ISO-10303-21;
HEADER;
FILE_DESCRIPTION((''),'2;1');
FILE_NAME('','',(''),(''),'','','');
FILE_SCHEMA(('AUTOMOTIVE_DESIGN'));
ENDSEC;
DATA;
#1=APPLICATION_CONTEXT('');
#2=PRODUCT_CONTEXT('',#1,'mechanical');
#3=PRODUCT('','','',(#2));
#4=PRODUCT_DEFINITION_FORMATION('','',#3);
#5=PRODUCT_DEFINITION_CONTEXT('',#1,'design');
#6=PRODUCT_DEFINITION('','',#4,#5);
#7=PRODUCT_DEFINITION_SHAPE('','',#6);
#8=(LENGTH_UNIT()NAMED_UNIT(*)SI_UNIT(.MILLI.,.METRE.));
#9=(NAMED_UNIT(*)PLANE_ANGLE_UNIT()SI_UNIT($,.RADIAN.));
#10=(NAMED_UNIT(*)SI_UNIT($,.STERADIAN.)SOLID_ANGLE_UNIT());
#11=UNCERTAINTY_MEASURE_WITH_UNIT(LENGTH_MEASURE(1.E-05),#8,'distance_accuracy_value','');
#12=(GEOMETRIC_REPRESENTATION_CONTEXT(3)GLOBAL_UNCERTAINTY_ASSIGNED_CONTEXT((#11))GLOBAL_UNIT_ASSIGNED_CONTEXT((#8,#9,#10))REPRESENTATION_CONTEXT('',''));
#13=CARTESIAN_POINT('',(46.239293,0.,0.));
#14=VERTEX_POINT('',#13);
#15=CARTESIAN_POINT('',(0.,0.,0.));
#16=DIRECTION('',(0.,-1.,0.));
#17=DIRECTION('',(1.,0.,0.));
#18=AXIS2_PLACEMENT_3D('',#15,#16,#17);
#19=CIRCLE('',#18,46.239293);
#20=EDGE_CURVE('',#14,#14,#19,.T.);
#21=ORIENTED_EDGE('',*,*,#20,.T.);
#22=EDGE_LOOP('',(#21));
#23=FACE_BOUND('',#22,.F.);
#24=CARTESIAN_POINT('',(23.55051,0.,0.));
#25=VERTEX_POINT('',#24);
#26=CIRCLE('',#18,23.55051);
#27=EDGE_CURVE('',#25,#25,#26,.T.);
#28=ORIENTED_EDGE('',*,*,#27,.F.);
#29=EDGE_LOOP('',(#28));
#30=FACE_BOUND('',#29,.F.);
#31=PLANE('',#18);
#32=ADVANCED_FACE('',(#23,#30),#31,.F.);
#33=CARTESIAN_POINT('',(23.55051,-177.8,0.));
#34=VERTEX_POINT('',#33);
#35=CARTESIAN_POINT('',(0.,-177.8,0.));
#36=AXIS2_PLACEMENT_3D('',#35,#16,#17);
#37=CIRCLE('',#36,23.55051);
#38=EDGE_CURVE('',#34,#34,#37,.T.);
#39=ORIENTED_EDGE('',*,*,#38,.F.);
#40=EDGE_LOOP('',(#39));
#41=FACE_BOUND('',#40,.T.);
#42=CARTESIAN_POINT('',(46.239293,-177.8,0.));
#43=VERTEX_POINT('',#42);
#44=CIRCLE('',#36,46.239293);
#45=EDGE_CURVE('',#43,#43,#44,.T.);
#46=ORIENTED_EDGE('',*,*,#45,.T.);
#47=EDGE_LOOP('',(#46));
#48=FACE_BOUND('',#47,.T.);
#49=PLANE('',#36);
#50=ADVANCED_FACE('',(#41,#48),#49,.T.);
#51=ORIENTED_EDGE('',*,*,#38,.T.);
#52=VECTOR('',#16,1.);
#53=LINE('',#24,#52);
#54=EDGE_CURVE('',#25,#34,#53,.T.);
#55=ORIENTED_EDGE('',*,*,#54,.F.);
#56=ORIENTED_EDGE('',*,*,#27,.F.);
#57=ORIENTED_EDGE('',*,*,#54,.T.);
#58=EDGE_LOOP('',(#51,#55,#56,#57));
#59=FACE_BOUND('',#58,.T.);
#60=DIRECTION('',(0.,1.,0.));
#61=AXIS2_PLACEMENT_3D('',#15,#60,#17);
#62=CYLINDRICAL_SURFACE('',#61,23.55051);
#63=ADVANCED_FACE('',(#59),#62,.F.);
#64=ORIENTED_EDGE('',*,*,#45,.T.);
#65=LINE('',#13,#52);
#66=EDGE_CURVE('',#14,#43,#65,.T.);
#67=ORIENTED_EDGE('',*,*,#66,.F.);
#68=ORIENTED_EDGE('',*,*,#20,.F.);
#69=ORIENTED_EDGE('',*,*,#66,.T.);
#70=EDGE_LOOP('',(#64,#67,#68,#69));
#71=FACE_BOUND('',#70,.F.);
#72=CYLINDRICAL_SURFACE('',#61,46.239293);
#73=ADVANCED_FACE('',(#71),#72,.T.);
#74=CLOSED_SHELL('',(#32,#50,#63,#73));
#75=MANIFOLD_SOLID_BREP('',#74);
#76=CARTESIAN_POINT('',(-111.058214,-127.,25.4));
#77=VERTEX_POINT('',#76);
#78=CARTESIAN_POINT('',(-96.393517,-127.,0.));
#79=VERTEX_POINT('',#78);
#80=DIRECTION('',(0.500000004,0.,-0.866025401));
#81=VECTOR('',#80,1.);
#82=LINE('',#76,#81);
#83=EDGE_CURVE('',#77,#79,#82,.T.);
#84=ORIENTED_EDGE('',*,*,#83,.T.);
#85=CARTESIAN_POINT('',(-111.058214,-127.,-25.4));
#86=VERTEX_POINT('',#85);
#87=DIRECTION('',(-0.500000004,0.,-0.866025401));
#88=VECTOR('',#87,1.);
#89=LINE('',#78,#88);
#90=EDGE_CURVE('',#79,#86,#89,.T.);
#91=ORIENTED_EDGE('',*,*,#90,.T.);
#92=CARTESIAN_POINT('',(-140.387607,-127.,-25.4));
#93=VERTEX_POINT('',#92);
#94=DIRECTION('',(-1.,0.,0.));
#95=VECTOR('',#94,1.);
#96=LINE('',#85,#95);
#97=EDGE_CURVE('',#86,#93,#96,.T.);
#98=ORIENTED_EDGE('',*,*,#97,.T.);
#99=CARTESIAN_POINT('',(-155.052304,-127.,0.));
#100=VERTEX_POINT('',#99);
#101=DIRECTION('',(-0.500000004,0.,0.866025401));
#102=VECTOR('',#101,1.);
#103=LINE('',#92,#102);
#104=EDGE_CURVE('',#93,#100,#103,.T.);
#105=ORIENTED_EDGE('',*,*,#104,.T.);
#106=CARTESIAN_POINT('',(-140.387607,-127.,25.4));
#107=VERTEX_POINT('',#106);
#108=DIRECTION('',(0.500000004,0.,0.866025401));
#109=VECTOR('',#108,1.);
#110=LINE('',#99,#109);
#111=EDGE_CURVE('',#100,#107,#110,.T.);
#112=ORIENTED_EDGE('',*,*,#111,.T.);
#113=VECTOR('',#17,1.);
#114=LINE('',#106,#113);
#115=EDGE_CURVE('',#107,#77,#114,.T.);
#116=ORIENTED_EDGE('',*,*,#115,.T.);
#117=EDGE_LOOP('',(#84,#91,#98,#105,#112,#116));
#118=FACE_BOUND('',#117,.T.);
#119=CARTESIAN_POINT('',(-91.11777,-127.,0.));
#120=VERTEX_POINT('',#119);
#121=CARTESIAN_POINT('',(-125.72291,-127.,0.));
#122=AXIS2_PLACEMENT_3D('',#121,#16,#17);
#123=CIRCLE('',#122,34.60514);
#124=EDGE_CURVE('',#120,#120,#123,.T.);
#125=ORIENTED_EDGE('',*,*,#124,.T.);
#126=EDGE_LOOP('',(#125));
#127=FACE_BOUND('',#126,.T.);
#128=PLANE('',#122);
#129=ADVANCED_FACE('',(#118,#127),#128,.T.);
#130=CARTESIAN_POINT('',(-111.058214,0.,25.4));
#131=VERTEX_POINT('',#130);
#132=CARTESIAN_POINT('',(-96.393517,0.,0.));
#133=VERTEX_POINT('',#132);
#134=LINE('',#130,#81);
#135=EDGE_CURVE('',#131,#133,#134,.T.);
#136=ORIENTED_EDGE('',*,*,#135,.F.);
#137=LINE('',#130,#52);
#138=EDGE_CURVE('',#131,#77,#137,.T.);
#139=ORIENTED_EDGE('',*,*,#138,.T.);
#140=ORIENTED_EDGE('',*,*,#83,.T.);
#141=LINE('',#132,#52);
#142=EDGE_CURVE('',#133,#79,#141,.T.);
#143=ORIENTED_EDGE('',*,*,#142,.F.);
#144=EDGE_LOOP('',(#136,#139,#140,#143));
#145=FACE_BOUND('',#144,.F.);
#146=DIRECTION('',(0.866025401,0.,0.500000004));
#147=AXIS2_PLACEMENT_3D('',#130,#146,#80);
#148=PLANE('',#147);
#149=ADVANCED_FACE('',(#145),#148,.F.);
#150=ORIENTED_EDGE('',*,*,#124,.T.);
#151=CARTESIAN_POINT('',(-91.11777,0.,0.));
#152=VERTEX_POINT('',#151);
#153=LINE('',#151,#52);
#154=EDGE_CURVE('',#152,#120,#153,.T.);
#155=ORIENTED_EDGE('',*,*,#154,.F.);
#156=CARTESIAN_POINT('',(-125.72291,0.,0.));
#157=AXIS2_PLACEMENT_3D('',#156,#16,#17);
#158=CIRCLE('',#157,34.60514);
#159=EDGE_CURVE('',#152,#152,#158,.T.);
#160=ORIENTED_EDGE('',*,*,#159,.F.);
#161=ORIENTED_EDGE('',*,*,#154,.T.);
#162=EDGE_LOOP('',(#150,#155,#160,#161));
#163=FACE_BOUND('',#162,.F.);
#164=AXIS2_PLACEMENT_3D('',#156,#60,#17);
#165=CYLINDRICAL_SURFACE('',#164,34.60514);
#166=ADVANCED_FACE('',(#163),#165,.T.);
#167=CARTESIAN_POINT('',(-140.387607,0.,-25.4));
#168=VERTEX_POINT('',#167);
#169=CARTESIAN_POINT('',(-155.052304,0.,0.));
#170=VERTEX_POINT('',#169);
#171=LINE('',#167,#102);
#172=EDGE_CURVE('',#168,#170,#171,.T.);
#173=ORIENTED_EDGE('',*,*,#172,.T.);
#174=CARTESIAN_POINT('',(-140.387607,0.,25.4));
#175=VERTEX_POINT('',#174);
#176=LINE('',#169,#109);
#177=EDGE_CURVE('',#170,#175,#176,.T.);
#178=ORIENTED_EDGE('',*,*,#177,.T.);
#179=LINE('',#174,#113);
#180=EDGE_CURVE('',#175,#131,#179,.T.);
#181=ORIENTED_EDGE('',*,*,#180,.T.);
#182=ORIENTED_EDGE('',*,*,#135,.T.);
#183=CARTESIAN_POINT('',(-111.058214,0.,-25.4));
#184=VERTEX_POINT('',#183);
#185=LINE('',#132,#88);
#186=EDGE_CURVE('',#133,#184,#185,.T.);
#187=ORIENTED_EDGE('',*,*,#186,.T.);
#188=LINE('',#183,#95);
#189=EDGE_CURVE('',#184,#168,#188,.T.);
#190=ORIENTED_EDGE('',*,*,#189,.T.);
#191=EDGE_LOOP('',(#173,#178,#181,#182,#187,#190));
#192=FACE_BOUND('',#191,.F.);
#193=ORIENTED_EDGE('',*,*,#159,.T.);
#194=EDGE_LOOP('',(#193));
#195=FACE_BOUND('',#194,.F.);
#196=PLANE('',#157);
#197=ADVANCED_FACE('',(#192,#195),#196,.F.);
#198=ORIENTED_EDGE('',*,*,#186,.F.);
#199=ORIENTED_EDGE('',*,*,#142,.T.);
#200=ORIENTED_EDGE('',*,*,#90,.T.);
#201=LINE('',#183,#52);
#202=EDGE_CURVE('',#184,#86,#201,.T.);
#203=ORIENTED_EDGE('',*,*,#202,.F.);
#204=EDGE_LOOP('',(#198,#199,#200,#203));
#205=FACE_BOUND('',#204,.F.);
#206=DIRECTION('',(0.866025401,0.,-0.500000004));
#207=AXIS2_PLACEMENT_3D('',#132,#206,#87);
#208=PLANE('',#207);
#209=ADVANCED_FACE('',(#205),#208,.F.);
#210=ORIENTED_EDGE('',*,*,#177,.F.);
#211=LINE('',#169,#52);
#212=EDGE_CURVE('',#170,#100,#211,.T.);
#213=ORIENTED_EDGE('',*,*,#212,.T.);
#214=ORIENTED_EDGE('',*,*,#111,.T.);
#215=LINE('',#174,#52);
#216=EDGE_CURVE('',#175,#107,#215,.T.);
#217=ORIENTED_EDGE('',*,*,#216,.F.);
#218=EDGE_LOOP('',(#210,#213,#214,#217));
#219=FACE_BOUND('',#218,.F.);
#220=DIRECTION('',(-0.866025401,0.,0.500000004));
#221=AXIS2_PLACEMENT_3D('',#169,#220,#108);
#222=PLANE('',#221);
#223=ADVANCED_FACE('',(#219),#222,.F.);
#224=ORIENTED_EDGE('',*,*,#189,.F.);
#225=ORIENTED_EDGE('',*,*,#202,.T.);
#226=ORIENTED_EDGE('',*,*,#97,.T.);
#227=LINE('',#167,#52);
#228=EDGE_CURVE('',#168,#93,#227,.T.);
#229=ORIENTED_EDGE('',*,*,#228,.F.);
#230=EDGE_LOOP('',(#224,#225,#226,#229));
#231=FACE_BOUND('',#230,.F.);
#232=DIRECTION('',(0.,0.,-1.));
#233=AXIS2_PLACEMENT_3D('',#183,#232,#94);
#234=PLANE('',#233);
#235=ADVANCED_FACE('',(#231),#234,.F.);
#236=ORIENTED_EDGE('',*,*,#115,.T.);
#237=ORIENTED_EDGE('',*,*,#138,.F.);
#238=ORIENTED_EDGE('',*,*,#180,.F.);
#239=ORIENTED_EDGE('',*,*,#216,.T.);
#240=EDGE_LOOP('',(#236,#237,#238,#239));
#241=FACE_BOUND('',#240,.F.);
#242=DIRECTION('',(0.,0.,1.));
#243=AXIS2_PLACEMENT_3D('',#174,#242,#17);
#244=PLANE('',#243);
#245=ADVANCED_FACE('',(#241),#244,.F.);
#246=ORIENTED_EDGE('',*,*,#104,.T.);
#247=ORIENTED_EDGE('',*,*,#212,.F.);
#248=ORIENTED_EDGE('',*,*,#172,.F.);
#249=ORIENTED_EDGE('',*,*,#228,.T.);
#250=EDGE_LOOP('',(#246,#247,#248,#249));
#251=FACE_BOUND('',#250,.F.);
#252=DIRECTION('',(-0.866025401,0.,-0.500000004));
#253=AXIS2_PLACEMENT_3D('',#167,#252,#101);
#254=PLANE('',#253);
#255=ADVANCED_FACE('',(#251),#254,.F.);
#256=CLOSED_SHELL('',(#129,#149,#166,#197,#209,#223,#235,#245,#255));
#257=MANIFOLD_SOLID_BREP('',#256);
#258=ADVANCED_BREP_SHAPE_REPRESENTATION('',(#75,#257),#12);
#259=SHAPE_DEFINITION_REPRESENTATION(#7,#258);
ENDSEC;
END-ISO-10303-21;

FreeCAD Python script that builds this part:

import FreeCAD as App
import Part
import Sketcher

V = App.Vector
Q = App.Units.Quantity


def add_polygon(sketch, points):
    """Adds a closed chain of lines whose ends are joined by coincident constraints."""
    first, n = sketch.GeometryCount, len(points)
    for a, b in zip(points, points[1:] + points[:1]):
        sketch.addGeometry(Part.LineSegment(App.Vector(*a, 0), App.Vector(*b, 0)), False)
    for i in range(n):
        sketch.addConstraint(Sketcher.Constraint("Coincident", first + i, 2, first + (i + 1) % n, 1))

doc = App.newDocument("Part")
body = doc.addObject("PartDesign::Body", "Body")

sketch1 = body.newObject("Sketcher::SketchObject", "Sketch")
sketch1.AttachmentSupport = (doc.getObject("XZ_Plane"), [""])
sketch1.MapMode = "FlatFace"
sketch1.addGeometry(Part.Circle(V(0, 0, 0), V(0, 0, 1), 46), False)
sketch1.addGeometry(Part.Circle(V(0, 0, 0), V(0, 0, 1), 24), False)
sketch1.addConstraint(Sketcher.Constraint("Coincident", 0, 3, -1, 1))
sketch1.addConstraint(Sketcher.Constraint("Coincident", 1, 3, -1, 1))
sketch1.addConstraint(Sketcher.Constraint("Diameter", 1, Q("47.10102 mm")))
sketch1.addConstraint(Sketcher.Constraint("Diameter", 0, Q("92.478586 mm")))
pad1 = body.newObject("PartDesign::Pad", "Pad")
pad1.Profile = sketch1
pad1.Length = Q("7 in")
body2 = doc.addObject("PartDesign::Body", "Body001")

sketch2 = body2.newObject("Sketcher::SketchObject", "Sketch001")
sketch2.AttachmentSupport = (doc.getObject("XZ_Plane001"), [""])
sketch2.MapMode = "FlatFace"
sketch2.addGeometry(Part.Circle(V(-126, 0, 0), V(0, 0, 1), 35), False)
add_polygon(sketch2, [(-111, 25), (-96, 0), (-111, -25), (-140, -25), (-155, 0), (-140, 25)])
sketch2.addConstraint(Sketcher.Constraint("Horizontal", 3))
sketch2.addConstraint(Sketcher.Constraint("Horizontal", 6))
sketch2.addConstraint(Sketcher.Constraint("Symmetric", 3, 2, 5, 2, -1))
sketch2.addConstraint(Sketcher.Constraint("PointOnObject", 0, 3, -1))
sketch2.addConstraint(Sketcher.Constraint("PointOnObject", 1, 2, -1))
sketch2.addConstraint(Sketcher.Constraint("PointOnObject", 4, 2, -1))
sketch2.addConstraint(Sketcher.Constraint("Parallel", 1, 4))
sketch2.addConstraint(Sketcher.Constraint("Parallel", 2, 5))
sketch2.addConstraint(Sketcher.Constraint("DistanceY", 2, 2, -1, 1, Q("1 in")))
sketch2.addConstraint(Sketcher.Constraint("Angle", 1, Q("-60 deg")))
sketch2.addConstraint(Sketcher.Constraint("Diameter", 0, Q("69.21028 mm")))
sketch2.addConstraint(Sketcher.Constraint("DistanceX", 3, 2, 3, 1, Q("29.329393 mm")))
sketch2.addConstraint(Sketcher.Constraint("DistanceX", 0, 3, -1, 1, Q("125.72291 mm")))
sketch2.addConstraint(Sketcher.Constraint("DistanceX", 1, 2, -1, 1, Q("96.393517 mm")))
pad2 = body2.newObject("PartDesign::Pad", "Pad001")
pad2.Profile = sketch2
pad2.Length = Q("5 in")

doc.recompute()
